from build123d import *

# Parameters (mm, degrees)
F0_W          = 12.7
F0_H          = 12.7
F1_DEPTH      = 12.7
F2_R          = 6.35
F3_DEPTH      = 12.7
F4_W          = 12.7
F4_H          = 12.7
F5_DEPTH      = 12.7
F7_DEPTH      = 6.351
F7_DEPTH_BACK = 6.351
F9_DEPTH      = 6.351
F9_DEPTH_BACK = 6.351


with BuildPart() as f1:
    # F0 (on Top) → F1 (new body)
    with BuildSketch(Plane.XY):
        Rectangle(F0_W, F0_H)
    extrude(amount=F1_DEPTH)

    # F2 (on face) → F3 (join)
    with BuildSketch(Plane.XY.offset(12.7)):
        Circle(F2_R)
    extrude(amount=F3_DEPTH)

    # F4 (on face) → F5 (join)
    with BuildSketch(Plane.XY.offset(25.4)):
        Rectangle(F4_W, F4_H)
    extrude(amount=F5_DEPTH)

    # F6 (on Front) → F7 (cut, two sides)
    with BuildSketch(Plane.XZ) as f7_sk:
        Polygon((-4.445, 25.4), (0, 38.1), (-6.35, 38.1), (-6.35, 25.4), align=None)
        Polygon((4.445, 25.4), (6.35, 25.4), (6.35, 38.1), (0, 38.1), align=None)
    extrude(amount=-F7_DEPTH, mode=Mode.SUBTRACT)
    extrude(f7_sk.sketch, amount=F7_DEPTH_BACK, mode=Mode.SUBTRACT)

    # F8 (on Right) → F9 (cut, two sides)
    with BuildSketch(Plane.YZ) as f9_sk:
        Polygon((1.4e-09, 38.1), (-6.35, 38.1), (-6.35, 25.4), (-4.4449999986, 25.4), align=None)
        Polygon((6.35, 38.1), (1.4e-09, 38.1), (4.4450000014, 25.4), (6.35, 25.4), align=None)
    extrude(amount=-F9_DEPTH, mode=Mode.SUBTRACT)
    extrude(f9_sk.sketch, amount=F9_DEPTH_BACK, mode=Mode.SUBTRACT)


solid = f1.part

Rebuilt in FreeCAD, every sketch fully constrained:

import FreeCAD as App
import Part
import Sketcher

V = App.Vector
Q = App.Units.Quantity

doc = App.newDocument("Part")
body = doc.addObject("PartDesign::Body", "Body")

sketch1 = body.newObject("Sketcher::SketchObject", "Sketch")
sketch1.AttachmentSupport = (doc.getObject("XY_Plane"), [""])
sketch1.MapMode = "FlatFace"
sketch1.addGeometry(Part.LineSegment(V(-6.35, 6.35, 0), V(-6.35, -6.35, 0)), False)
sketch1.addGeometry(Part.LineSegment(V(-6.35, -6.35, 0), V(6.35, -6.35, 0)), False)
sketch1.addGeometry(Part.LineSegment(V(6.35, -6.35, 0), V(6.35, 6.35, 0)), False)
sketch1.addGeometry(Part.LineSegment(V(6.35, 6.35, 0), V(-6.35, 6.35, 0)), False)
sketch1.addConstraint(Sketcher.Constraint("Coincident", 0, 2, 1, 1))
sketch1.addConstraint(Sketcher.Constraint("Coincident", 1, 2, 2, 1))
sketch1.addConstraint(Sketcher.Constraint("Coincident", 2, 2, 3, 1))
sketch1.addConstraint(Sketcher.Constraint("Coincident", 3, 2, 0, 1))
sketch1.addConstraint(Sketcher.Constraint("Vertical", 0))
sketch1.addConstraint(Sketcher.Constraint("Horizontal", 1))
sketch1.addConstraint(Sketcher.Constraint("Vertical", 2))
sketch1.addConstraint(Sketcher.Constraint("Horizontal", 3))
sketch1.addConstraint(Sketcher.Constraint("Symmetric", 0, 2, 2, 2, -1, 1))
sketch1.addConstraint(Sketcher.Constraint("Equal", 3, 0))
sketch1.addConstraint(Sketcher.Constraint("DistanceX", 1, 1, 1, 2, Q("0.5 in")))
pad1 = body.newObject("PartDesign::Pad", "Pad")
pad1.Profile = sketch1
pad1.Length = Q("0.5 in")

sketch2 = body.newObject("Sketcher::SketchObject", "Sketch001")
sketch2.AttachmentSupport = (doc.getObject("XY_Plane"), [""])
sketch2.MapMode = "FlatFace"
sketch2.AttachmentOffset = App.Placement(V(0, 0, 0.5 * 25.4), App.Rotation())
sketch2.addGeometry(Part.Circle(V(0, 0, 0), V(0, 0, 1), 6.35), False)
sketch2.addConstraint(Sketcher.Constraint("Coincident", 0, 3, -1, 1))
sketch2.addConstraint(Sketcher.Constraint("Diameter", 0, Q("0.5 in")))
pad2 = body.newObject("PartDesign::Pad", "Pad001")
pad2.Profile = sketch2
pad2.Length = Q("0.5 in")

sketch3 = body.newObject("Sketcher::SketchObject", "Sketch002")
sketch3.AttachmentSupport = (doc.getObject("XY_Plane"), [""])
sketch3.MapMode = "FlatFace"
sketch3.AttachmentOffset = App.Placement(V(0, 0, 1 * 25.4), App.Rotation())
sketch3.addGeometry(Part.LineSegment(V(-6.35, 6.35, 0), V(-6.35, -6.35, 0)), False)
sketch3.addGeometry(Part.LineSegment(V(-6.35, -6.35, 0), V(6.35, -6.35, 0)), False)
sketch3.addGeometry(Part.LineSegment(V(6.35, -6.35, 0), V(6.35, 6.35, 0)), False)
sketch3.addGeometry(Part.LineSegment(V(6.35, 6.35, 0), V(-6.35, 6.35, 0)), False)
sketch3.addConstraint(Sketcher.Constraint("Coincident", 0, 2, 1, 1))
sketch3.addConstraint(Sketcher.Constraint("Coincident", 1, 2, 2, 1))
sketch3.addConstraint(Sketcher.Constraint("Coincident", 2, 2, 3, 1))
sketch3.addConstraint(Sketcher.Constraint("Coincident", 3, 2, 0, 1))
sketch3.addConstraint(Sketcher.Constraint("Vertical", 0))
sketch3.addConstraint(Sketcher.Constraint("Horizontal", 1))
sketch3.addConstraint(Sketcher.Constraint("Vertical", 2))
sketch3.addConstraint(Sketcher.Constraint("Horizontal", 3))
sketch3.addConstraint(Sketcher.Constraint("Symmetric", 0, 2, 2, 2, -1, 1))
sketch3.addConstraint(Sketcher.Constraint("Equal", 3, 0))
sketch3.addConstraint(Sketcher.Constraint("DistanceX", 1, 1, 1, 2, Q("0.5 in")))
pad3 = body.newObject("PartDesign::Pad", "Pad002")
pad3.Profile = sketch3
pad3.Length = Q("0.5 in")

sketch4 = body.newObject("Sketcher::SketchObject", "Sketch003")
sketch4.AttachmentSupport = (doc.getObject("XZ_Plane"), [""])
sketch4.MapMode = "FlatFace"
sketch4.addGeometry(Part.LineSegment(V(-4.445, 25.4, 0), V(0, 38.1, 0)), False)
sketch4.addGeometry(Part.LineSegment(V(0, 38.1, 0), V(-6.35, 38.1, 0)), False)
sketch4.addGeometry(Part.LineSegment(V(-6.35, 38.1, 0), V(-6.35, 25.4, 0)), False)
sketch4.addGeometry(Part.LineSegment(V(-6.35, 25.4, 0), V(-4.445, 25.4, 0)), False)
sketch4.addGeometry(Part.LineSegment(V(4.445, 25.4, 0), V(6.35, 25.4, 0)), False)
sketch4.addGeometry(Part.LineSegment(V(6.35, 25.4, 0), V(6.35, 38.1, 0)), False)
sketch4.addGeometry(Part.LineSegment(V(6.35, 38.1, 0), V(0, 38.1, 0)), False)
sketch4.addGeometry(Part.LineSegment(V(0, 38.1, 0), V(4.445, 25.4, 0)), False)
sketch4.addConstraint(Sketcher.Constraint("Coincident", 0, 2, 1, 1))
sketch4.addConstraint(Sketcher.Constraint("Coincident", 1, 2, 2, 1))
sketch4.addConstraint(Sketcher.Constraint("Coincident", 2, 2, 3, 1))
sketch4.addConstraint(Sketcher.Constraint("Coincident", 3, 2, 0, 1))
sketch4.addConstraint(Sketcher.Constraint("Coincident", 4, 2, 5, 1))
sketch4.addConstraint(Sketcher.Constraint("Coincident", 5, 2, 6, 1))
sketch4.addConstraint(Sketcher.Constraint("Coincident", 6, 2, 7, 1))
sketch4.addConstraint(Sketcher.Constraint("Coincident", 7, 2, 4, 1))
sketch4.addConstraint(Sketcher.Constraint("Horizontal", 1))
sketch4.addConstraint(Sketcher.Constraint("Vertical", 2))
sketch4.addConstraint(Sketcher.Constraint("Horizontal", 3))
sketch4.addConstraint(Sketcher.Constraint("Horizontal", 4))
sketch4.addConstraint(Sketcher.Constraint("Vertical", 5))
sketch4.addConstraint(Sketcher.Constraint("Horizontal", 6))
sketch4.addConstraint(Sketcher.Constraint("Coincident", 6, 2, 0, 2))
sketch4.addConstraint(Sketcher.Constraint("Symmetric", 2, 2, 4, 2, -2))
sketch4.addConstraint(Sketcher.Constraint("PointOnObject", 0, 2, -2))
sketch4.addConstraint(Sketcher.Constraint("Equal", 3, 4))
sketch4.addConstraint(Sketcher.Constraint("DistanceY", 2, 2, 2, 1, Q("0.5 in")))
sketch4.addConstraint(Sketcher.Constraint("DistanceY", -1, 1, 2, 2, Q("1 in")))
sketch4.addConstraint(Sketcher.Constraint("DistanceX", 1, 2, 1, 1, Q("0.25 in")))
sketch4.addConstraint(Sketcher.Constraint("DistanceX", 3, 1, 3, 2, Q("0.075 in")))
pocket1 = body.newObject("PartDesign::Pocket", "Pocket")
pocket1.Profile = sketch4
pocket1.Type = "ThroughAll"
pocket1.Midplane = True

sketch5 = body.newObject("Sketcher::SketchObject", "Sketch004")
sketch5.AttachmentSupport = (doc.getObject("YZ_Plane"), [""])
sketch5.MapMode = "FlatFace"
sketch5.addGeometry(Part.LineSegment(V(0, 38.1, 0), V(-6.35, 38.1, 0)), False)
sketch5.addGeometry(Part.LineSegment(V(-6.35, 38.1, 0), V(-6.35, 25.4, 0)), False)
sketch5.addGeometry(Part.LineSegment(V(-6.35, 25.4, 0), V(-4.445, 25.4, 0)), False)
sketch5.addGeometry(Part.LineSegment(V(-4.445, 25.4, 0), V(0, 38.1, 0)), False)
sketch5.addGeometry(Part.LineSegment(V(6.35, 38.1, 0), V(0, 38.1, 0)), False)
sketch5.addGeometry(Part.LineSegment(V(0, 38.1, 0), V(4.445, 25.4, 0)), False)
sketch5.addGeometry(Part.LineSegment(V(4.445, 25.4, 0), V(6.35, 25.4, 0)), False)
sketch5.addGeometry(Part.LineSegment(V(6.35, 25.4, 0), V(6.35, 38.1, 0)), False)
sketch5.addConstraint(Sketcher.Constraint("Coincident", 0, 2, 1, 1))
sketch5.addConstraint(Sketcher.Constraint("Coincident", 1, 2, 2, 1))
sketch5.addConstraint(Sketcher.Constraint("Coincident", 2, 2, 3, 1))
sketch5.addConstraint(Sketcher.Constraint("Coincident", 3, 2, 0, 1))
sketch5.addConstraint(Sketcher.Constraint("Coincident", 4, 2, 5, 1))
sketch5.addConstraint(Sketcher.Constraint("Coincident", 5, 2, 6, 1))
sketch5.addConstraint(Sketcher.Constraint("Coincident", 6, 2, 7, 1))
sketch5.addConstraint(Sketcher.Constraint("Coincident", 7, 2, 4, 1))
sketch5.addConstraint(Sketcher.Constraint("Horizontal", 0))
sketch5.addConstraint(Sketcher.Constraint("Vertical", 1))
sketch5.addConstraint(Sketcher.Constraint("Horizontal", 2))
sketch5.addConstraint(Sketcher.Constraint("Horizontal", 4))
sketch5.addConstraint(Sketcher.Constraint("Horizontal", 6))
sketch5.addConstraint(Sketcher.Constraint("Vertical", 7))
sketch5.addConstraint(Sketcher.Constraint("Coincident", 4, 2, 3, 2))
sketch5.addConstraint(Sketcher.Constraint("Symmetric", 2, 2, 5, 2, -2))
sketch5.addConstraint(Sketcher.Constraint("PointOnObject", 3, 2, -2))
sketch5.addConstraint(Sketcher.Constraint("Equal", 0, 4))
sketch5.addConstraint(Sketcher.Constraint("DistanceY", 1, 2, 1, 1, Q("0.5 in")))
sketch5.addConstraint(Sketcher.Constraint("DistanceY", -1, 1, 1, 2, Q("1 in")))
sketch5.addConstraint(Sketcher.Constraint("DistanceX", 0, 2, 0, 1, Q("0.25 in")))
sketch5.addConstraint(Sketcher.Constraint("DistanceX", 2, 1, 2, 2, Q("0.075 in")))
pocket2 = body.newObject("PartDesign::Pocket", "Pocket001")
pocket2.Profile = sketch5
pocket2.Type = "ThroughAll"
pocket2.Midplane = True

doc.recompute()
